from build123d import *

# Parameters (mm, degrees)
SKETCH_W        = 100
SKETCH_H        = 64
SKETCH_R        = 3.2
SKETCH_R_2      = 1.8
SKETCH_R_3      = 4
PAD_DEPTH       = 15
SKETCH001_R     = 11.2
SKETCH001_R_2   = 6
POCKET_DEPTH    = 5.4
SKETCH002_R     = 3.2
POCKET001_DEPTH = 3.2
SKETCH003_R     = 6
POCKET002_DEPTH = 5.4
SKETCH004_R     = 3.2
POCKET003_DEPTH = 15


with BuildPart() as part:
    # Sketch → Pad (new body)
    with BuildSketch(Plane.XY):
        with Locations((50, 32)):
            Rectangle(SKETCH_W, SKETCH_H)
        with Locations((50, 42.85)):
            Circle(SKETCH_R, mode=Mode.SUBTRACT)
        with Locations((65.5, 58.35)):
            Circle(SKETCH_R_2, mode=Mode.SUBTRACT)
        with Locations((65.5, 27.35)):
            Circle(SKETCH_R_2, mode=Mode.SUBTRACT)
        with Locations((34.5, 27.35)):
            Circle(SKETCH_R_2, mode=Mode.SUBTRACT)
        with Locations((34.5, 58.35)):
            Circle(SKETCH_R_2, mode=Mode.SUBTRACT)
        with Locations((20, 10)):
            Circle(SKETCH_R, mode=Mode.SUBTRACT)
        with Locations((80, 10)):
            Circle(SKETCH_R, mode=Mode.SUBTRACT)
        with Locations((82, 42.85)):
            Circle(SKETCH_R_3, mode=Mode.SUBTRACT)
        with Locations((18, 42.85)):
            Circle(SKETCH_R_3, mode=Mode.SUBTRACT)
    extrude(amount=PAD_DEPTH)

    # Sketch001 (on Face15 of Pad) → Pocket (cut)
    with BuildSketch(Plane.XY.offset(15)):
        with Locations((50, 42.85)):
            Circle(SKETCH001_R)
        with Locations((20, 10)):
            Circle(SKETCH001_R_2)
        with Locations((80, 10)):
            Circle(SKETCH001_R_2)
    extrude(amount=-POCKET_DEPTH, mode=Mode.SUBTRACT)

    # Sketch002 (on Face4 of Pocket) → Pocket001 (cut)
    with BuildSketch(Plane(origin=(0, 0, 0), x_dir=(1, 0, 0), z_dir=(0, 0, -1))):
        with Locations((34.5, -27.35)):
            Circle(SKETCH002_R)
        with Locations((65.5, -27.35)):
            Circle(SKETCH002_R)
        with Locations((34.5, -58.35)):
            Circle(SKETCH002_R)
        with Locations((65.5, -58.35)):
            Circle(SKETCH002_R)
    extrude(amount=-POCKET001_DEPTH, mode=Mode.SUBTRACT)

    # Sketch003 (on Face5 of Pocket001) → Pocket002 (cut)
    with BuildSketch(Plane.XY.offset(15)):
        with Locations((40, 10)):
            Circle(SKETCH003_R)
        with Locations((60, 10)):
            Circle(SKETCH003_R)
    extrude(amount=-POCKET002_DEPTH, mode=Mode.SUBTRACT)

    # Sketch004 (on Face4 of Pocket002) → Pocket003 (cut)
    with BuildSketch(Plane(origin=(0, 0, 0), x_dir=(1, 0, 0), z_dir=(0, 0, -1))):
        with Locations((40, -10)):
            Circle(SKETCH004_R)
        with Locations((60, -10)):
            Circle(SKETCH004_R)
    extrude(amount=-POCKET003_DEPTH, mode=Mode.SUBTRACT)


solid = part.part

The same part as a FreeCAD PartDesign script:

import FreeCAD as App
import Part
import Sketcher
Q = App.Units.Quantity


def add_polygon(sketch, points):
    """Adds a closed chain of lines whose ends are joined by coincident constraints."""
    first, n = sketch.GeometryCount, len(points)
    for a, b in zip(points, points[1:] + points[:1]):
        sketch.addGeometry(Part.LineSegment(App.Vector(*a, 0), App.Vector(*b, 0)), False)
    for i in range(n):
        sketch.addConstraint(Sketcher.Constraint("Coincident", first + i, 2, first + (i + 1) % n, 1))

doc = App.newDocument("Part")
body = doc.addObject("PartDesign::Body", "Body")

sketch1 = body.newObject("Sketcher::SketchObject", "Sketch")
sketch1.AttachmentSupport = (doc.getObject("XY_Plane"), [""])
sketch1.MapMode = "FlatFace"
add_polygon(sketch1, [(0, 64), (0, 0), (100, 0), (100, 64)])
sketch1.addGeometry(Part.Circle(App.Vector(20, 10, 0), App.Vector(0, 0, 1), 3.2), False)
sketch1.addGeometry(Part.Circle(App.Vector(34.5, 27.4, 0), App.Vector(0, 0, 1), 1.8), False)
sketch1.addGeometry(Part.Circle(App.Vector(80, 10, 0), App.Vector(0, 0, 1), 3.2), False)
sketch1.addGeometry(Part.Circle(App.Vector(65.5, 27.4, 0), App.Vector(0, 0, 1), 1.8), False)
sketch1.addGeometry(Part.Circle(App.Vector(18, 42.9, 0), App.Vector(0, 0, 1), 4), False)
sketch1.addGeometry(Part.Circle(App.Vector(34.5, 58.4, 0), App.Vector(0, 0, 1), 1.8), False)
sketch1.addGeometry(Part.Circle(App.Vector(50, 42.9, 0), App.Vector(0, 0, 1), 3.2), False)
sketch1.addGeometry(Part.Circle(App.Vector(82, 42.9, 0), App.Vector(0, 0, 1), 4), False)
sketch1.addGeometry(Part.Circle(App.Vector(65.5, 58.4, 0), App.Vector(0, 0, 1), 1.8), False)
sketch1.addConstraint(Sketcher.Constraint("Vertical", 0))
sketch1.addConstraint(Sketcher.Constraint("Horizontal", 1))
sketch1.addConstraint(Sketcher.Constraint("Vertical", 2))
sketch1.addConstraint(Sketcher.Constraint("Horizontal", 3))
sketch1.addConstraint(Sketcher.Constraint("Coincident", 0, 2, -1, 1))
sketch1.addConstraint(Sketcher.Constraint("Equal", 4, 6))
sketch1.addConstraint(Sketcher.Constraint("Equal", 5, 7))
sketch1.addConstraint(Sketcher.Constraint("Equal", 7, 9))
sketch1.addConstraint(Sketcher.Constraint("Equal", 6, 10))
sketch1.addConstraint(Sketcher.Constraint("Equal", 8, 11))
sketch1.addConstraint(Sketcher.Constraint("Equal", 9, 12))
sketch1.addConstraint(Sketcher.Constraint("Horizontal", 4, 3, 6, 3))
sketch1.addConstraint(Sketcher.Constraint("Horizontal", 5, 3, 7, 3))
sketch1.addConstraint(Sketcher.Constraint("Horizontal", 8, 3, 10, 3))
sketch1.addConstraint(Sketcher.Constraint("Horizontal", 10, 3, 11, 3))
sketch1.addConstraint(Sketcher.Constraint("Horizontal", 9, 3, 12, 3))
sketch1.addConstraint(Sketcher.Constraint("Vertical", 5, 3, 9, 3))
sketch1.addConstraint(Sketcher.Constraint("Vertical", 7, 3, 12, 3))
sketch1.addConstraint(Sketcher.Constraint("Diameter", 8, Q("8 mm")))
sketch1.addConstraint(Sketcher.Constraint("Diameter", 4, Q("6.4 mm")))
sketch1.addConstraint(Sketcher.Constraint("Diameter", 5, Q("3.6 mm")))
sketch1.addConstraint(Sketcher.Constraint("DistanceX", 1, 1, 1, 2, Q("100 mm")))
sketch1.addConstraint(Sketcher.Constraint("DistanceY", 0, 2, 0, 1, Q("64 mm")))
sketch1.addConstraint(Sketcher.Constraint("DistanceX", -1, 1, 4, 3, Q("20 mm")))
sketch1.addConstraint(Sketcher.Constraint("DistanceY", -1, 1, 4, 3, Q("10 mm")))
sketch1.addConstraint(Sketcher.Constraint("DistanceX", -1, 1, 6, 3, Q("80 mm")))
sketch1.addConstraint(Sketcher.Constraint("DistanceX", -1, 1, 8, 3, Q("18 mm")))
sketch1.addConstraint(Sketcher.Constraint("DistanceX", -1, 1, 10, 3, Q("50 mm")))
sketch1.addConstraint(Sketcher.Constraint("DistanceX", -1, 1, 11, 3, Q("82 mm")))
sketch1.addConstraint(Sketcher.Constraint("DistanceX", 5, 3, 7, 3, Q("31 mm")))
sketch1.addConstraint(Sketcher.Constraint("DistanceY", 5, 3, 9, 3, Q("31 mm")))
sketch1.addConstraint(Sketcher.Constraint("DistanceX", -1, 1, 5, 3, Q("34.5 mm")))
sketch1.addConstraint(Sketcher.Constraint("DistanceY", 5, 3, 8, 3, Q("15.5 mm")))
sketch1.addConstraint(Sketcher.Constraint("DistanceY", -1, 1, 5, 3, Q("27.35 mm")))
pad1 = body.newObject("PartDesign::Pad", "Pad")
pad1.Profile = sketch1
pad1.Length = 15

sketch2 = body.newObject("Sketcher::SketchObject", "Sketch001")
sketch2.AttachmentSupport = (doc.getObject("XY_Plane"), [""])
sketch2.MapMode = "FlatFace"
sketch2.AttachmentOffset = App.Placement(App.Vector(0, 0, 15), App.Rotation())
sketch2.addGeometry(Part.Circle(App.Vector(50, 43, 0), App.Vector(0, 0, 1), 11), False)
sketch2.addGeometry(Part.Circle(App.Vector(20, 10, 0), App.Vector(0, 0, 1), 6), False)
sketch2.addGeometry(Part.Circle(App.Vector(80, 10, 0), App.Vector(0, 0, 1), 6), False)
sketch2.addConstraint(Sketcher.Constraint("Equal", 1, 2))
sketch2.addConstraint(Sketcher.Constraint("Horizontal", 1, 3, 2, 3))
sketch2.addConstraint(Sketcher.Constraint("Diameter", 1, Q("12 mm")))
sketch2.addConstraint(Sketcher.Constraint("Diameter", 0, Q("22.4 mm")))
sketch2.addConstraint(Sketcher.Constraint("DistanceX", -1, 1, 0, 3, Q("50 mm")))
sketch2.addConstraint(Sketcher.Constraint("DistanceX", -1, 1, 1, 3, Q("20 mm")))
sketch2.addConstraint(Sketcher.Constraint("DistanceY", -1, 1, 1, 3, Q("10 mm")))
sketch2.addConstraint(Sketcher.Constraint("DistanceX", -1, 1, 2, 3, Q("80 mm")))
sketch2.addConstraint(Sketcher.Constraint("DistanceY", -1, 1, 0, 3, Q("42.85 mm")))
pocket1 = body.newObject("PartDesign::Pocket", "Pocket")
pocket1.Profile = sketch2
pocket1.Length = 5.4

sketch3 = body.newObject("Sketcher::SketchObject", "Sketch002")
sketch3.AttachmentSupport = (doc.getObject("XY_Plane"), [""])
sketch3.MapMode = "FlatFace"
sketch3.addGeometry(Part.Circle(App.Vector(34.5, 27.4, 0), App.Vector(0, 0, 1), 3.2), False)
sketch3.addGeometry(Part.Circle(App.Vector(65.5, 27.4, 0), App.Vector(0, 0, 1), 3.2), False)
sketch3.addGeometry(Part.Circle(App.Vector(34.5, 58.4, 0), App.Vector(0, 0, 1), 3.2), False)
sketch3.addGeometry(Part.Circle(App.Vector(65.5, 58.4, 0), App.Vector(0, 0, 1), 3.2), False)
sketch3.addConstraint(Sketcher.Constraint("Equal", 0, 1))
sketch3.addConstraint(Sketcher.Constraint("Equal", 1, 2))
sketch3.addConstraint(Sketcher.Constraint("Equal", 2, 3))
sketch3.addConstraint(Sketcher.Constraint("Horizontal", 0, 3, 1, 3))
sketch3.addConstraint(Sketcher.Constraint("Horizontal", 2, 3, 3, 3))
sketch3.addConstraint(Sketcher.Constraint("Vertical", 0, 3, 2, 3))
sketch3.addConstraint(Sketcher.Constraint("Vertical", 1, 3, 3, 3))
sketch3.addConstraint(Sketcher.Constraint("Diameter", 0, Q("6.4 mm")))
sketch3.addConstraint(Sketcher.Constraint("DistanceX", 0, 3, 1, 3, Q("31 mm")))
sketch3.addConstraint(Sketcher.Constraint("DistanceY", 0, 3, 2, 3, Q("31 mm")))
sketch3.addConstraint(Sketcher.Constraint("DistanceX", -1, 1, 0, 3, Q("34.5 mm")))
sketch3.addConstraint(Sketcher.Constraint("DistanceY", -1, 1, 0, 3, Q("27.35 mm")))
pocket2 = body.newObject("PartDesign::Pocket", "Pocket001")
pocket2.Profile = sketch3
pocket2.Length = 3.2
pocket2.Reversed = True

sketch4 = body.newObject("Sketcher::SketchObject", "Sketch003")
sketch4.AttachmentSupport = (doc.getObject("XY_Plane"), [""])
sketch4.MapMode = "FlatFace"
sketch4.AttachmentOffset = App.Placement(App.Vector(0, 0, 15), App.Rotation())
sketch4.addGeometry(Part.Circle(App.Vector(40, 10, 0), App.Vector(0, 0, 1), 6), False)
sketch4.addGeometry(Part.Circle(App.Vector(60, 10, 0), App.Vector(0, 0, 1), 6), False)
sketch4.addConstraint(Sketcher.Constraint("Equal", 0, 1))
sketch4.addConstraint(Sketcher.Constraint("Horizontal", 0, 3, 1, 3))
sketch4.addConstraint(Sketcher.Constraint("Diameter", 0, Q("12 mm")))
sketch4.addConstraint(Sketcher.Constraint("DistanceX", -1, 1, 0, 3, Q("40 mm")))
sketch4.addConstraint(Sketcher.Constraint("DistanceY", -1, 1, 0, 3, Q("10 mm")))
sketch4.addConstraint(Sketcher.Constraint("DistanceX", -1, 1, 1, 3, Q("60 mm")))
pocket3 = body.newObject("PartDesign::Pocket", "Pocket002")
pocket3.Profile = sketch4
pocket3.Length = 5.4

sketch5 = body.newObject("Sketcher::SketchObject", "Sketch004")
sketch5.AttachmentSupport = (doc.getObject("XY_Plane"), [""])
sketch5.MapMode = "FlatFace"
sketch5.addGeometry(Part.Circle(App.Vector(40, 10, 0), App.Vector(0, 0, 1), 3.2), False)
sketch5.addGeometry(Part.Circle(App.Vector(60, 10, 0), App.Vector(0, 0, 1), 3.2), False)
sketch5.addConstraint(Sketcher.Constraint("Equal", 0, 1))
sketch5.addConstraint(Sketcher.Constraint("Horizontal", 0, 3, 1, 3))
sketch5.addConstraint(Sketcher.Constraint("Diameter", 0, Q("6.4 mm")))
sketch5.addConstraint(Sketcher.Constraint("DistanceX", -1, 1, 0, 3, Q("40 mm")))
sketch5.addConstraint(Sketcher.Constraint("DistanceY", -1, 1, 0, 3, Q("10 mm")))
sketch5.addConstraint(Sketcher.Constraint("DistanceX", -1, 1, 1, 3, Q("60 mm")))
pocket4 = body.newObject("PartDesign::Pocket", "Pocket003")
pocket4.Profile = sketch5
pocket4.Length = 15
pocket4.Reversed = True

doc.recompute()
